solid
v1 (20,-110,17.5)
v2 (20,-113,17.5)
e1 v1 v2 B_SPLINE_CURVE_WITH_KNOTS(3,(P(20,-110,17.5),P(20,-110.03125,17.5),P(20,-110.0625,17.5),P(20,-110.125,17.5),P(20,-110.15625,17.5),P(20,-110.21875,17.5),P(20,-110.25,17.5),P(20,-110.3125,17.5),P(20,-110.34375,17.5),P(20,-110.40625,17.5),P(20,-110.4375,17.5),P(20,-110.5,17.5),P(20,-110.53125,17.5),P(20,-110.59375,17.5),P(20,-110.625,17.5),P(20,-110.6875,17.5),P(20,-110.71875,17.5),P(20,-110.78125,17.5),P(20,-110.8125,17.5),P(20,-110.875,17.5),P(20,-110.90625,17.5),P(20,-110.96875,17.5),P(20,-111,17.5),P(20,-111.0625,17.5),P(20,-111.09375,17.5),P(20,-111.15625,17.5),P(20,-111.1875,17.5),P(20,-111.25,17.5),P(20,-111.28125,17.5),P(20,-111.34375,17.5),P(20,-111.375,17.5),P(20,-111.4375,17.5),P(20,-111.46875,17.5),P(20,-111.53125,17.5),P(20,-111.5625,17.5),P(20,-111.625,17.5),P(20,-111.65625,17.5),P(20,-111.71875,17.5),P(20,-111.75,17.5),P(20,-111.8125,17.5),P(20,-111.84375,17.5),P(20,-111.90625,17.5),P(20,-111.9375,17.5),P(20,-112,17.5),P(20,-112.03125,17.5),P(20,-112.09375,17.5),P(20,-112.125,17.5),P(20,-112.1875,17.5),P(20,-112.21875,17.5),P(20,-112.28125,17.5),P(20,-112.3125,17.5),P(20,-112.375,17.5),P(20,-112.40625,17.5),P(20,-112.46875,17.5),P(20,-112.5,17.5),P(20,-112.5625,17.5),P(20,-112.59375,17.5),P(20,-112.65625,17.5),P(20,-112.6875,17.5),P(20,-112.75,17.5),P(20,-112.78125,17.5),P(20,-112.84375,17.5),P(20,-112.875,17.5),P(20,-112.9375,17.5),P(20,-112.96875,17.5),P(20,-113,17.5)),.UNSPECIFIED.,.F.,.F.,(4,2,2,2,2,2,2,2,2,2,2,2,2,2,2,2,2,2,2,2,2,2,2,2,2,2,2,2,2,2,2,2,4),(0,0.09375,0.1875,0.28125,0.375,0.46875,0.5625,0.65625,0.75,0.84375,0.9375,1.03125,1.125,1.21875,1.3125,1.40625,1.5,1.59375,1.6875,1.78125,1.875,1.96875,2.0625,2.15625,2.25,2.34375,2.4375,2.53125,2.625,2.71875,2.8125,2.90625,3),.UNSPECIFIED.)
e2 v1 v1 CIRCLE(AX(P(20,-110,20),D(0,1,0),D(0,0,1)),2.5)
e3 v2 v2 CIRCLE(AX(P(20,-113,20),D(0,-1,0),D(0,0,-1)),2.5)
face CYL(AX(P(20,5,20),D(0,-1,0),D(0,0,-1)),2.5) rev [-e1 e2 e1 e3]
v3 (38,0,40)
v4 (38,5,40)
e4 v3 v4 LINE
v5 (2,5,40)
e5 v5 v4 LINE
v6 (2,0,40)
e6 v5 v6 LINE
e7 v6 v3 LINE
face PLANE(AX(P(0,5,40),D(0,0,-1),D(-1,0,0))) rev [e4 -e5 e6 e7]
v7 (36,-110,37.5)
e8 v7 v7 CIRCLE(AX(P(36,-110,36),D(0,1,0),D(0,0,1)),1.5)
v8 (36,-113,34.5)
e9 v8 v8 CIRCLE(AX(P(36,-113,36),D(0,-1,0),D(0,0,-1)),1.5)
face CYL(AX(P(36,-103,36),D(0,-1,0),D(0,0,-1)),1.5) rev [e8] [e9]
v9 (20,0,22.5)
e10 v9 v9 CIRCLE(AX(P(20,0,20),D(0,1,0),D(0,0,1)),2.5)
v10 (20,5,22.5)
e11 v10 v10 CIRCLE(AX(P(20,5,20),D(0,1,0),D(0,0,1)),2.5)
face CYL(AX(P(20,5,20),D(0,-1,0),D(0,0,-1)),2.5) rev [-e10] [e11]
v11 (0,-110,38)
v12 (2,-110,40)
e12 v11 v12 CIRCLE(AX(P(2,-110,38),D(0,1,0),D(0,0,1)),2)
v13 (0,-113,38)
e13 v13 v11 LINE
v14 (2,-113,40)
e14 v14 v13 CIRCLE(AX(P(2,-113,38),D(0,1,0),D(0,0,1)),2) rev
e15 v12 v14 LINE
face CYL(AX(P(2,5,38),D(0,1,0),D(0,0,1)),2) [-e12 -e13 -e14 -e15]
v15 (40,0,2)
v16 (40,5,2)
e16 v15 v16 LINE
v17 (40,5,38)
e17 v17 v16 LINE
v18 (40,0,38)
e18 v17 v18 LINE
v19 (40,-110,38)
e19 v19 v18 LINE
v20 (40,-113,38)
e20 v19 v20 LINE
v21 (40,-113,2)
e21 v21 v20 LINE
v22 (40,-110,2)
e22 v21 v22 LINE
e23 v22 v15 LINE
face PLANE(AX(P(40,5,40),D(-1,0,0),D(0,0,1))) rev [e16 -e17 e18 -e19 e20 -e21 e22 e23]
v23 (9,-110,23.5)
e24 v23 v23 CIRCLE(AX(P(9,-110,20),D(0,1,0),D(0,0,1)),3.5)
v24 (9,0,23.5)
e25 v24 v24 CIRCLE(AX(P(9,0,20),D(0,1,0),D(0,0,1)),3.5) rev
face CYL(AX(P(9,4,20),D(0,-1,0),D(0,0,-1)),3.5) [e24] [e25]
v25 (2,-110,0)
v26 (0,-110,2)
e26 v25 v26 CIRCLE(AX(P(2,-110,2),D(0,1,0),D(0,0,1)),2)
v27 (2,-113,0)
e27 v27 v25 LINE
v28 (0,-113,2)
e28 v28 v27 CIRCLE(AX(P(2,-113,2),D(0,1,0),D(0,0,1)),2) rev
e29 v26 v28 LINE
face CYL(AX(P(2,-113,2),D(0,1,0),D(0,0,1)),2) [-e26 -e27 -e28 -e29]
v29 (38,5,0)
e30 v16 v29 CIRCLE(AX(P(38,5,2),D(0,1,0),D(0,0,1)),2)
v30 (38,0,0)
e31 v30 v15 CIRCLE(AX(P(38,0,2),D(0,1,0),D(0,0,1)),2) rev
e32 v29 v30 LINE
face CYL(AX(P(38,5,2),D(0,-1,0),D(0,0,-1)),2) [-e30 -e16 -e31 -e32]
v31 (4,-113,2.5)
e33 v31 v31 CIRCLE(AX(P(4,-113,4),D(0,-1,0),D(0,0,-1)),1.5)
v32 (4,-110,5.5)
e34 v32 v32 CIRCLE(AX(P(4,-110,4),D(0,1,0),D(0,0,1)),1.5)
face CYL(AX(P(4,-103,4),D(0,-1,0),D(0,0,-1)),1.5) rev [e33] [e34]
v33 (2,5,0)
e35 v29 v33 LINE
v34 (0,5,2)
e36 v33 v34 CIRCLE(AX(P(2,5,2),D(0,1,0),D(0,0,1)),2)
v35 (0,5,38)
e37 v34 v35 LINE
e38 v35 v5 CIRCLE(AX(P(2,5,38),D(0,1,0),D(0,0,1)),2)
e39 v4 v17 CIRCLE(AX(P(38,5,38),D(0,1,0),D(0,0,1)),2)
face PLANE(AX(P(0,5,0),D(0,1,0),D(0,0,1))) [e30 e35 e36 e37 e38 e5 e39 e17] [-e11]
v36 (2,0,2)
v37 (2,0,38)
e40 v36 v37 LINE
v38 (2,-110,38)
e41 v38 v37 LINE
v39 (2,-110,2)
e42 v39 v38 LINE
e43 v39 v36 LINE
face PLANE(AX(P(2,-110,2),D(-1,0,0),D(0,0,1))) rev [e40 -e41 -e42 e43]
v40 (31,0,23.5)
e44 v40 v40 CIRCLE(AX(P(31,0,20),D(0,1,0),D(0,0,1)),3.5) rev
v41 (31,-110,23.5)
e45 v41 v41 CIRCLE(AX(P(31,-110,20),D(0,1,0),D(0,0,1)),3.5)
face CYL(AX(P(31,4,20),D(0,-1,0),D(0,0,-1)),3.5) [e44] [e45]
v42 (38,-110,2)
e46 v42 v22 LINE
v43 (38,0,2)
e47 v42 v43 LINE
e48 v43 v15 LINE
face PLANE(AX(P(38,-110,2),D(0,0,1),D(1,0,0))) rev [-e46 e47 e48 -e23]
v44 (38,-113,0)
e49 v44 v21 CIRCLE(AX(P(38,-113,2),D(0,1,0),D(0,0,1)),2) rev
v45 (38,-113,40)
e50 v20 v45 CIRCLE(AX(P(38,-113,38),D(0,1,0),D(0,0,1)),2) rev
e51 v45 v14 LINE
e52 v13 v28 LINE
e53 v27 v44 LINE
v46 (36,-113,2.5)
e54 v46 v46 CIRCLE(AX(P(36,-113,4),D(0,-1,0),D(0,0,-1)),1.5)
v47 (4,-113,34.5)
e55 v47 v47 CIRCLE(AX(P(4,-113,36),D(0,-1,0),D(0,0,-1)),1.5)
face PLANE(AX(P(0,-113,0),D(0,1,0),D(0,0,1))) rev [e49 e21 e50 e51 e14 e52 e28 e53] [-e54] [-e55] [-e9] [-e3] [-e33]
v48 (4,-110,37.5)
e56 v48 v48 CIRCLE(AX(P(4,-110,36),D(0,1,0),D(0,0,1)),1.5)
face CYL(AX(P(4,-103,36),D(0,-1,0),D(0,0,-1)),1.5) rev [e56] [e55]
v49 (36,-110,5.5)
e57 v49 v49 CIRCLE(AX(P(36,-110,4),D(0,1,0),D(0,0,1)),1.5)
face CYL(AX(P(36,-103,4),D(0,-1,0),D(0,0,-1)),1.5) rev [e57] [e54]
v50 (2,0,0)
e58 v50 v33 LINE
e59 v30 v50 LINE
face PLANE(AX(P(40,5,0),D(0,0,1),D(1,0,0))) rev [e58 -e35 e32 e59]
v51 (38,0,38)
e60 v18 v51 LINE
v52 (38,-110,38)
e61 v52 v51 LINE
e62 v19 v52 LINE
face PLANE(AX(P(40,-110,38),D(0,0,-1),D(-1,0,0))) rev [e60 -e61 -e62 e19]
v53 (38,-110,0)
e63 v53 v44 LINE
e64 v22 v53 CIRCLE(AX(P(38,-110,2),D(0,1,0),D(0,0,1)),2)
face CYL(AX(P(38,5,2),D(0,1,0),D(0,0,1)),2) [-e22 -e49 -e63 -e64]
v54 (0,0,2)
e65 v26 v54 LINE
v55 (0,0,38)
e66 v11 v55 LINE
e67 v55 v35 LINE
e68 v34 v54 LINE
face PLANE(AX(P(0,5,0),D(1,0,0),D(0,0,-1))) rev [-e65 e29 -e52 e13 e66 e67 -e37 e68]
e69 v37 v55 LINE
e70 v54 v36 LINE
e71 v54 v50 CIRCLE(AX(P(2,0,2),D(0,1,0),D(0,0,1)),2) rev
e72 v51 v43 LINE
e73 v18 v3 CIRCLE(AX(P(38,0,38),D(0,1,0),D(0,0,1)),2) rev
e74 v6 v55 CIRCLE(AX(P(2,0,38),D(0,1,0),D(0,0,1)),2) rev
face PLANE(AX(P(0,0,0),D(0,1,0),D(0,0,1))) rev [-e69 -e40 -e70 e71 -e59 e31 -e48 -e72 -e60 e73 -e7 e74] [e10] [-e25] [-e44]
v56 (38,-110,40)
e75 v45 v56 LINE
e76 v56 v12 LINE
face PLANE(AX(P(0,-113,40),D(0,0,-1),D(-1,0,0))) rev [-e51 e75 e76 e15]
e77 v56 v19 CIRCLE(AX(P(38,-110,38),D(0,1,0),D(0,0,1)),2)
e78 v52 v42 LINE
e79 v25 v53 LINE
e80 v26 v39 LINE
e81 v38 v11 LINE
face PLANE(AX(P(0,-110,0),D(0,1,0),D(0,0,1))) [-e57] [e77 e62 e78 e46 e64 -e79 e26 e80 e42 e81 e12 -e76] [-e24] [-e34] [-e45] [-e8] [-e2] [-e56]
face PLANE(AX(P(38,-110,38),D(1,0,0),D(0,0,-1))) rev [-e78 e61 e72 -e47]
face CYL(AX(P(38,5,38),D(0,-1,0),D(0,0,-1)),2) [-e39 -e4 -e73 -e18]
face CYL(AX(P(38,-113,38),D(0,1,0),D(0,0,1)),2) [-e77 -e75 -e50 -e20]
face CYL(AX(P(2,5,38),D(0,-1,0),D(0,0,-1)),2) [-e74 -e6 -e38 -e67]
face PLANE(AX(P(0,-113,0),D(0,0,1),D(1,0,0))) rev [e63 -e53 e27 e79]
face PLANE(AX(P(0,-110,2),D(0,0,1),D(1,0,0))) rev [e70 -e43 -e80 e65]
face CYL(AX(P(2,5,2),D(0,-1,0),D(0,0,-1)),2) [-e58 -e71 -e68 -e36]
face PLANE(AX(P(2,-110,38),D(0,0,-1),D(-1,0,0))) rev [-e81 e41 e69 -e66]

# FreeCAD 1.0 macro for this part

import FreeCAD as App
import Part
import Sketcher

V = App.Vector


def edges_at(feature, points):
    """Names of the edges that pass closest to the given points."""
    edges = feature.Shape.Edges
    near = lambda p: min(range(len(edges)), key=lambda i: edges[i].distToShape(Part.Vertex(*p))[0])
    return sorted({f"Edge{near(p) + 1}" for p in points})


def add_polygon(sketch, points):
    """Adds a closed chain of lines whose ends are joined by coincident constraints."""
    first, n = sketch.GeometryCount, len(points)
    for a, b in zip(points, points[1:] + points[:1]):
        sketch.addGeometry(Part.LineSegment(App.Vector(*a, 0), App.Vector(*b, 0)), False)
    for i in range(n):
        sketch.addConstraint(Sketcher.Constraint("Coincident", first + i, 2, first + (i + 1) % n, 1))

doc = App.newDocument("Part")
body = doc.addObject("PartDesign::Body", "Body")

# Sketch on XZ plane
sketch1 = body.newObject("Sketcher::SketchObject", "Sketch")
sketch1.AttachmentSupport = (doc.getObject("XZ_Plane"), [""])
sketch1.MapMode = "FlatFace"
add_polygon(sketch1, [(0, 0), (0, 40), (40, 40), (40, 0)])  # lines 0-3
sketch1.addConstraint([
    Sketcher.Constraint("Vertical", 0),
    Sketcher.Constraint("Horizontal", 1),
    Sketcher.Constraint("Vertical", 2),
    Sketcher.Constraint("Horizontal", 3),
    Sketcher.Constraint("Coincident", 3, 2, -1, 1),
    Sketcher.Constraint("Equal", 3, 0),
    Sketcher.Constraint("DistanceX", 1, 1, 1, 2, 40.0),
])
pad1 = body.newObject("PartDesign::Pad", "Pad")
pad1.Profile = sketch1
pad1.Length = 5
pad1.Reversed = True
doc.recompute()

fillet = body.newObject("PartDesign::Fillet", "Fillet")
fillet.Base = (pad1, edges_at(pad1, [
    (40, 2.5, 0),
    (40, 2.5, 40),
    (0, 2.5, 40),
    (0, 2.5, 0),
]))
fillet.Radius = 2

# Sketch on XZ plane
sketch2 = body.newObject("Sketcher::SketchObject", "Sketch001")
sketch2.AttachmentSupport = (doc.getObject("XZ_Plane"), [""])
sketch2.MapMode = "FlatFace"
add_polygon(sketch2, [(0, 38), (0, 2), (2, 2), (2, 38)])  # lines 0-3
add_polygon(sketch2, [(38, 38), (38, 2), (40, 2), (40, 38)])  # lines 4-7
sketch2.addConstraint([
    Sketcher.Constraint("Vertical", 0),
    Sketcher.Constraint("Horizontal", 1),
    Sketcher.Constraint("Vertical", 2),
    Sketcher.Constraint("Horizontal", 3),
    Sketcher.Constraint("Vertical", 4),
    Sketcher.Constraint("Horizontal", 5),
    Sketcher.Constraint("Vertical", 6),
    Sketcher.Constraint("Horizontal", 7),
    Sketcher.Constraint("PointOnObject", 0, 2, -2),
    Sketcher.Constraint("Horizontal", 1, 2, 4, 2),
    Sketcher.Constraint("Horizontal", 3, 2, 6, 2),
    Sketcher.Constraint("Equal", 3, 5),
    Sketcher.Constraint("DistanceX", 1, 1, 1, 2, 2.0),
    Sketcher.Constraint("DistanceY", 0, 2, 0, 1, 36.0),
    Sketcher.Constraint("DistanceY", -1, 1, 0, 2, 2.0),
    Sketcher.Constraint("DistanceX", -1, 1, 4, 2, 38.0),
])
pad2 = body.newObject("PartDesign::Pad", "Pad001")
pad2.Profile = sketch2
pad2.Length = 110

# Sketch on XZ plane
sketch3 = body.newObject("Sketcher::SketchObject", "Sketch002")
sketch3.AttachmentSupport = (doc.getObject("XZ_Plane"), [""])
sketch3.MapMode = "FlatFace"
sketch3.AttachmentOffset = App.Placement(V(0, 0, 110), App.Rotation())
add_polygon(sketch3, [(0, 40), (0, 0), (40, 0), (40, 40)])  # lines 0-3
sketch3.addConstraint([
    Sketcher.Constraint("Vertical", 0),
    Sketcher.Constraint("Horizontal", 1),
    Sketcher.Constraint("Vertical", 2),
    Sketcher.Constraint("Horizontal", 3),
    Sketcher.Constraint("Coincident", 0, 2, -1, 1),
    Sketcher.Constraint("Equal", 3, 0),
    Sketcher.Constraint("DistanceX", 1, 1, 1, 2, 40.0),
])
pad3 = body.newObject("PartDesign::Pad", "Pad002")
pad3.Profile = sketch3
pad3.Length = 3
doc.recompute()

fillet2 = body.newObject("PartDesign::Fillet", "Fillet001")
fillet2.Base = (pad3, edges_at(pad3, [
    (0, -111.5, 0),
    (40, -111.5, 0),
    (40, -111.5, 40),
    (0, -111.5, 40),
]))
fillet2.Radius = 2

# Sketch on XZ plane
sketch4 = body.newObject("Sketcher::SketchObject", "Sketch003")
sketch4.AttachmentSupport = (doc.getObject("XZ_Plane"), [""])
sketch4.MapMode = "FlatFace"
sketch4.AttachmentOffset = App.Placement(V(0, 0, 113), App.Rotation())
sketch4.addGeometry([
    Part.Circle(V(4, 4, 0), V(0, 0, 1), 1.5),
    Part.Circle(V(36, 4, 0), V(0, 0, 1), 1.5),
    Part.Circle(V(4, 36, 0), V(0, 0, 1), 1.5),
    Part.Circle(V(36, 36, 0), V(0, 0, 1), 1.5),
], False)
sketch4.addConstraint([
    Sketcher.Constraint("Equal", 0, 1),
    Sketcher.Constraint("Equal", 1, 2),
    Sketcher.Constraint("Equal", 2, 3),
    Sketcher.Constraint("Horizontal", 0, 3, 1, 3),
    Sketcher.Constraint("Horizontal", 2, 3, 3, 3),
    Sketcher.Constraint("Vertical", 0, 3, 2, 3),
    Sketcher.Constraint("Vertical", 1, 3, 3, 3),
    Sketcher.Constraint("Diameter", 0, 3.0),
    Sketcher.Constraint("DistanceX", -1, 1, 0, 3, 4.0),
    Sketcher.Constraint("DistanceY", -1, 1, 0, 3, 4.0),
    Sketcher.Constraint("DistanceX", -1, 1, 1, 3, 36.0),
    Sketcher.Constraint("DistanceY", -1, 1, 2, 3, 36.0),
])
pocket1 = body.newObject("PartDesign::Pocket", "Pocket")
pocket1.Profile = sketch4
pocket1.Length = 10

# Sketch on XZ plane
sketch5 = body.newObject("Sketcher::SketchObject", "Sketch004")
sketch5.AttachmentSupport = (doc.getObject("XZ_Plane"), [""])
sketch5.MapMode = "FlatFace"
sketch5.addGeometry(Part.Circle(V(20, 20, 0), V(0, 0, 1), 2.5), False)
sketch5.addConstraint([
    Sketcher.Constraint("Diameter", 0, 5.0),
    Sketcher.Constraint("DistanceX", -1, 1, 0, 3, 20.0),
    Sketcher.Constraint("DistanceY", -1, 1, 0, 3, 20.0),
])
pocket2 = body.newObject("PartDesign::Pocket", "Pocket001")
pocket2.Profile = sketch5
pocket2.Type = "ThroughAll"

# Sketch on XZ plane
sketch6 = body.newObject("Sketcher::SketchObject", "Sketch005")
sketch6.AttachmentSupport = (doc.getObject("XZ_Plane"), [""])
sketch6.MapMode = "FlatFace"
sketch6.AttachmentOffset = App.Placement(V(0, 0, 113), App.Rotation())
sketch6.addGeometry(Part.Circle(V(20, 20, 0), V(0, 0, 1), 2.5), False)
sketch6.addConstraint([
    Sketcher.Constraint("Diameter", 0, 5.0),
    Sketcher.Constraint("DistanceX", -1, 1, 0, 3, 20.0),
    Sketcher.Constraint("DistanceY", -1, 1, 0, 3, 20.0),
])
pocket3 = body.newObject("PartDesign::Pocket", "Pocket002")
pocket3.Profile = sketch6
pocket3.Type = "ThroughAll"

# Sketch on XZ plane
sketch7 = body.newObject("Sketcher::SketchObject", "Sketch006")
sketch7.AttachmentSupport = (doc.getObject("XZ_Plane"), [""])
sketch7.MapMode = "FlatFace"
sketch7.AttachmentOffset = App.Placement(V(0, 0, 110), App.Rotation())
sketch7.addGeometry([
    Part.Circle(V(9, 20, 0), V(0, 0, 1), 3.5),
    Part.Circle(V(31, 20, 0), V(0, 0, 1), 3.5),
], False)
sketch7.addConstraint([
    Sketcher.Constraint("Equal", 0, 1),
    Sketcher.Constraint("Horizontal", 0, 3, 1, 3),
    Sketcher.Constraint("Diameter", 0, 7.0),
    Sketcher.Constraint("DistanceX", -1, 1, 0, 3, 9.0),
    Sketcher.Constraint("DistanceY", -1, 1, 0, 3, 20.0),
    Sketcher.Constraint("DistanceX", -1, 1, 1, 3, 31.0),
])
pad4 = body.newObject("PartDesign::Pad", "Pad003")
pad4.Profile = sketch7
pad4.Length = 114
pad4.Reversed = True

doc.recompute()
